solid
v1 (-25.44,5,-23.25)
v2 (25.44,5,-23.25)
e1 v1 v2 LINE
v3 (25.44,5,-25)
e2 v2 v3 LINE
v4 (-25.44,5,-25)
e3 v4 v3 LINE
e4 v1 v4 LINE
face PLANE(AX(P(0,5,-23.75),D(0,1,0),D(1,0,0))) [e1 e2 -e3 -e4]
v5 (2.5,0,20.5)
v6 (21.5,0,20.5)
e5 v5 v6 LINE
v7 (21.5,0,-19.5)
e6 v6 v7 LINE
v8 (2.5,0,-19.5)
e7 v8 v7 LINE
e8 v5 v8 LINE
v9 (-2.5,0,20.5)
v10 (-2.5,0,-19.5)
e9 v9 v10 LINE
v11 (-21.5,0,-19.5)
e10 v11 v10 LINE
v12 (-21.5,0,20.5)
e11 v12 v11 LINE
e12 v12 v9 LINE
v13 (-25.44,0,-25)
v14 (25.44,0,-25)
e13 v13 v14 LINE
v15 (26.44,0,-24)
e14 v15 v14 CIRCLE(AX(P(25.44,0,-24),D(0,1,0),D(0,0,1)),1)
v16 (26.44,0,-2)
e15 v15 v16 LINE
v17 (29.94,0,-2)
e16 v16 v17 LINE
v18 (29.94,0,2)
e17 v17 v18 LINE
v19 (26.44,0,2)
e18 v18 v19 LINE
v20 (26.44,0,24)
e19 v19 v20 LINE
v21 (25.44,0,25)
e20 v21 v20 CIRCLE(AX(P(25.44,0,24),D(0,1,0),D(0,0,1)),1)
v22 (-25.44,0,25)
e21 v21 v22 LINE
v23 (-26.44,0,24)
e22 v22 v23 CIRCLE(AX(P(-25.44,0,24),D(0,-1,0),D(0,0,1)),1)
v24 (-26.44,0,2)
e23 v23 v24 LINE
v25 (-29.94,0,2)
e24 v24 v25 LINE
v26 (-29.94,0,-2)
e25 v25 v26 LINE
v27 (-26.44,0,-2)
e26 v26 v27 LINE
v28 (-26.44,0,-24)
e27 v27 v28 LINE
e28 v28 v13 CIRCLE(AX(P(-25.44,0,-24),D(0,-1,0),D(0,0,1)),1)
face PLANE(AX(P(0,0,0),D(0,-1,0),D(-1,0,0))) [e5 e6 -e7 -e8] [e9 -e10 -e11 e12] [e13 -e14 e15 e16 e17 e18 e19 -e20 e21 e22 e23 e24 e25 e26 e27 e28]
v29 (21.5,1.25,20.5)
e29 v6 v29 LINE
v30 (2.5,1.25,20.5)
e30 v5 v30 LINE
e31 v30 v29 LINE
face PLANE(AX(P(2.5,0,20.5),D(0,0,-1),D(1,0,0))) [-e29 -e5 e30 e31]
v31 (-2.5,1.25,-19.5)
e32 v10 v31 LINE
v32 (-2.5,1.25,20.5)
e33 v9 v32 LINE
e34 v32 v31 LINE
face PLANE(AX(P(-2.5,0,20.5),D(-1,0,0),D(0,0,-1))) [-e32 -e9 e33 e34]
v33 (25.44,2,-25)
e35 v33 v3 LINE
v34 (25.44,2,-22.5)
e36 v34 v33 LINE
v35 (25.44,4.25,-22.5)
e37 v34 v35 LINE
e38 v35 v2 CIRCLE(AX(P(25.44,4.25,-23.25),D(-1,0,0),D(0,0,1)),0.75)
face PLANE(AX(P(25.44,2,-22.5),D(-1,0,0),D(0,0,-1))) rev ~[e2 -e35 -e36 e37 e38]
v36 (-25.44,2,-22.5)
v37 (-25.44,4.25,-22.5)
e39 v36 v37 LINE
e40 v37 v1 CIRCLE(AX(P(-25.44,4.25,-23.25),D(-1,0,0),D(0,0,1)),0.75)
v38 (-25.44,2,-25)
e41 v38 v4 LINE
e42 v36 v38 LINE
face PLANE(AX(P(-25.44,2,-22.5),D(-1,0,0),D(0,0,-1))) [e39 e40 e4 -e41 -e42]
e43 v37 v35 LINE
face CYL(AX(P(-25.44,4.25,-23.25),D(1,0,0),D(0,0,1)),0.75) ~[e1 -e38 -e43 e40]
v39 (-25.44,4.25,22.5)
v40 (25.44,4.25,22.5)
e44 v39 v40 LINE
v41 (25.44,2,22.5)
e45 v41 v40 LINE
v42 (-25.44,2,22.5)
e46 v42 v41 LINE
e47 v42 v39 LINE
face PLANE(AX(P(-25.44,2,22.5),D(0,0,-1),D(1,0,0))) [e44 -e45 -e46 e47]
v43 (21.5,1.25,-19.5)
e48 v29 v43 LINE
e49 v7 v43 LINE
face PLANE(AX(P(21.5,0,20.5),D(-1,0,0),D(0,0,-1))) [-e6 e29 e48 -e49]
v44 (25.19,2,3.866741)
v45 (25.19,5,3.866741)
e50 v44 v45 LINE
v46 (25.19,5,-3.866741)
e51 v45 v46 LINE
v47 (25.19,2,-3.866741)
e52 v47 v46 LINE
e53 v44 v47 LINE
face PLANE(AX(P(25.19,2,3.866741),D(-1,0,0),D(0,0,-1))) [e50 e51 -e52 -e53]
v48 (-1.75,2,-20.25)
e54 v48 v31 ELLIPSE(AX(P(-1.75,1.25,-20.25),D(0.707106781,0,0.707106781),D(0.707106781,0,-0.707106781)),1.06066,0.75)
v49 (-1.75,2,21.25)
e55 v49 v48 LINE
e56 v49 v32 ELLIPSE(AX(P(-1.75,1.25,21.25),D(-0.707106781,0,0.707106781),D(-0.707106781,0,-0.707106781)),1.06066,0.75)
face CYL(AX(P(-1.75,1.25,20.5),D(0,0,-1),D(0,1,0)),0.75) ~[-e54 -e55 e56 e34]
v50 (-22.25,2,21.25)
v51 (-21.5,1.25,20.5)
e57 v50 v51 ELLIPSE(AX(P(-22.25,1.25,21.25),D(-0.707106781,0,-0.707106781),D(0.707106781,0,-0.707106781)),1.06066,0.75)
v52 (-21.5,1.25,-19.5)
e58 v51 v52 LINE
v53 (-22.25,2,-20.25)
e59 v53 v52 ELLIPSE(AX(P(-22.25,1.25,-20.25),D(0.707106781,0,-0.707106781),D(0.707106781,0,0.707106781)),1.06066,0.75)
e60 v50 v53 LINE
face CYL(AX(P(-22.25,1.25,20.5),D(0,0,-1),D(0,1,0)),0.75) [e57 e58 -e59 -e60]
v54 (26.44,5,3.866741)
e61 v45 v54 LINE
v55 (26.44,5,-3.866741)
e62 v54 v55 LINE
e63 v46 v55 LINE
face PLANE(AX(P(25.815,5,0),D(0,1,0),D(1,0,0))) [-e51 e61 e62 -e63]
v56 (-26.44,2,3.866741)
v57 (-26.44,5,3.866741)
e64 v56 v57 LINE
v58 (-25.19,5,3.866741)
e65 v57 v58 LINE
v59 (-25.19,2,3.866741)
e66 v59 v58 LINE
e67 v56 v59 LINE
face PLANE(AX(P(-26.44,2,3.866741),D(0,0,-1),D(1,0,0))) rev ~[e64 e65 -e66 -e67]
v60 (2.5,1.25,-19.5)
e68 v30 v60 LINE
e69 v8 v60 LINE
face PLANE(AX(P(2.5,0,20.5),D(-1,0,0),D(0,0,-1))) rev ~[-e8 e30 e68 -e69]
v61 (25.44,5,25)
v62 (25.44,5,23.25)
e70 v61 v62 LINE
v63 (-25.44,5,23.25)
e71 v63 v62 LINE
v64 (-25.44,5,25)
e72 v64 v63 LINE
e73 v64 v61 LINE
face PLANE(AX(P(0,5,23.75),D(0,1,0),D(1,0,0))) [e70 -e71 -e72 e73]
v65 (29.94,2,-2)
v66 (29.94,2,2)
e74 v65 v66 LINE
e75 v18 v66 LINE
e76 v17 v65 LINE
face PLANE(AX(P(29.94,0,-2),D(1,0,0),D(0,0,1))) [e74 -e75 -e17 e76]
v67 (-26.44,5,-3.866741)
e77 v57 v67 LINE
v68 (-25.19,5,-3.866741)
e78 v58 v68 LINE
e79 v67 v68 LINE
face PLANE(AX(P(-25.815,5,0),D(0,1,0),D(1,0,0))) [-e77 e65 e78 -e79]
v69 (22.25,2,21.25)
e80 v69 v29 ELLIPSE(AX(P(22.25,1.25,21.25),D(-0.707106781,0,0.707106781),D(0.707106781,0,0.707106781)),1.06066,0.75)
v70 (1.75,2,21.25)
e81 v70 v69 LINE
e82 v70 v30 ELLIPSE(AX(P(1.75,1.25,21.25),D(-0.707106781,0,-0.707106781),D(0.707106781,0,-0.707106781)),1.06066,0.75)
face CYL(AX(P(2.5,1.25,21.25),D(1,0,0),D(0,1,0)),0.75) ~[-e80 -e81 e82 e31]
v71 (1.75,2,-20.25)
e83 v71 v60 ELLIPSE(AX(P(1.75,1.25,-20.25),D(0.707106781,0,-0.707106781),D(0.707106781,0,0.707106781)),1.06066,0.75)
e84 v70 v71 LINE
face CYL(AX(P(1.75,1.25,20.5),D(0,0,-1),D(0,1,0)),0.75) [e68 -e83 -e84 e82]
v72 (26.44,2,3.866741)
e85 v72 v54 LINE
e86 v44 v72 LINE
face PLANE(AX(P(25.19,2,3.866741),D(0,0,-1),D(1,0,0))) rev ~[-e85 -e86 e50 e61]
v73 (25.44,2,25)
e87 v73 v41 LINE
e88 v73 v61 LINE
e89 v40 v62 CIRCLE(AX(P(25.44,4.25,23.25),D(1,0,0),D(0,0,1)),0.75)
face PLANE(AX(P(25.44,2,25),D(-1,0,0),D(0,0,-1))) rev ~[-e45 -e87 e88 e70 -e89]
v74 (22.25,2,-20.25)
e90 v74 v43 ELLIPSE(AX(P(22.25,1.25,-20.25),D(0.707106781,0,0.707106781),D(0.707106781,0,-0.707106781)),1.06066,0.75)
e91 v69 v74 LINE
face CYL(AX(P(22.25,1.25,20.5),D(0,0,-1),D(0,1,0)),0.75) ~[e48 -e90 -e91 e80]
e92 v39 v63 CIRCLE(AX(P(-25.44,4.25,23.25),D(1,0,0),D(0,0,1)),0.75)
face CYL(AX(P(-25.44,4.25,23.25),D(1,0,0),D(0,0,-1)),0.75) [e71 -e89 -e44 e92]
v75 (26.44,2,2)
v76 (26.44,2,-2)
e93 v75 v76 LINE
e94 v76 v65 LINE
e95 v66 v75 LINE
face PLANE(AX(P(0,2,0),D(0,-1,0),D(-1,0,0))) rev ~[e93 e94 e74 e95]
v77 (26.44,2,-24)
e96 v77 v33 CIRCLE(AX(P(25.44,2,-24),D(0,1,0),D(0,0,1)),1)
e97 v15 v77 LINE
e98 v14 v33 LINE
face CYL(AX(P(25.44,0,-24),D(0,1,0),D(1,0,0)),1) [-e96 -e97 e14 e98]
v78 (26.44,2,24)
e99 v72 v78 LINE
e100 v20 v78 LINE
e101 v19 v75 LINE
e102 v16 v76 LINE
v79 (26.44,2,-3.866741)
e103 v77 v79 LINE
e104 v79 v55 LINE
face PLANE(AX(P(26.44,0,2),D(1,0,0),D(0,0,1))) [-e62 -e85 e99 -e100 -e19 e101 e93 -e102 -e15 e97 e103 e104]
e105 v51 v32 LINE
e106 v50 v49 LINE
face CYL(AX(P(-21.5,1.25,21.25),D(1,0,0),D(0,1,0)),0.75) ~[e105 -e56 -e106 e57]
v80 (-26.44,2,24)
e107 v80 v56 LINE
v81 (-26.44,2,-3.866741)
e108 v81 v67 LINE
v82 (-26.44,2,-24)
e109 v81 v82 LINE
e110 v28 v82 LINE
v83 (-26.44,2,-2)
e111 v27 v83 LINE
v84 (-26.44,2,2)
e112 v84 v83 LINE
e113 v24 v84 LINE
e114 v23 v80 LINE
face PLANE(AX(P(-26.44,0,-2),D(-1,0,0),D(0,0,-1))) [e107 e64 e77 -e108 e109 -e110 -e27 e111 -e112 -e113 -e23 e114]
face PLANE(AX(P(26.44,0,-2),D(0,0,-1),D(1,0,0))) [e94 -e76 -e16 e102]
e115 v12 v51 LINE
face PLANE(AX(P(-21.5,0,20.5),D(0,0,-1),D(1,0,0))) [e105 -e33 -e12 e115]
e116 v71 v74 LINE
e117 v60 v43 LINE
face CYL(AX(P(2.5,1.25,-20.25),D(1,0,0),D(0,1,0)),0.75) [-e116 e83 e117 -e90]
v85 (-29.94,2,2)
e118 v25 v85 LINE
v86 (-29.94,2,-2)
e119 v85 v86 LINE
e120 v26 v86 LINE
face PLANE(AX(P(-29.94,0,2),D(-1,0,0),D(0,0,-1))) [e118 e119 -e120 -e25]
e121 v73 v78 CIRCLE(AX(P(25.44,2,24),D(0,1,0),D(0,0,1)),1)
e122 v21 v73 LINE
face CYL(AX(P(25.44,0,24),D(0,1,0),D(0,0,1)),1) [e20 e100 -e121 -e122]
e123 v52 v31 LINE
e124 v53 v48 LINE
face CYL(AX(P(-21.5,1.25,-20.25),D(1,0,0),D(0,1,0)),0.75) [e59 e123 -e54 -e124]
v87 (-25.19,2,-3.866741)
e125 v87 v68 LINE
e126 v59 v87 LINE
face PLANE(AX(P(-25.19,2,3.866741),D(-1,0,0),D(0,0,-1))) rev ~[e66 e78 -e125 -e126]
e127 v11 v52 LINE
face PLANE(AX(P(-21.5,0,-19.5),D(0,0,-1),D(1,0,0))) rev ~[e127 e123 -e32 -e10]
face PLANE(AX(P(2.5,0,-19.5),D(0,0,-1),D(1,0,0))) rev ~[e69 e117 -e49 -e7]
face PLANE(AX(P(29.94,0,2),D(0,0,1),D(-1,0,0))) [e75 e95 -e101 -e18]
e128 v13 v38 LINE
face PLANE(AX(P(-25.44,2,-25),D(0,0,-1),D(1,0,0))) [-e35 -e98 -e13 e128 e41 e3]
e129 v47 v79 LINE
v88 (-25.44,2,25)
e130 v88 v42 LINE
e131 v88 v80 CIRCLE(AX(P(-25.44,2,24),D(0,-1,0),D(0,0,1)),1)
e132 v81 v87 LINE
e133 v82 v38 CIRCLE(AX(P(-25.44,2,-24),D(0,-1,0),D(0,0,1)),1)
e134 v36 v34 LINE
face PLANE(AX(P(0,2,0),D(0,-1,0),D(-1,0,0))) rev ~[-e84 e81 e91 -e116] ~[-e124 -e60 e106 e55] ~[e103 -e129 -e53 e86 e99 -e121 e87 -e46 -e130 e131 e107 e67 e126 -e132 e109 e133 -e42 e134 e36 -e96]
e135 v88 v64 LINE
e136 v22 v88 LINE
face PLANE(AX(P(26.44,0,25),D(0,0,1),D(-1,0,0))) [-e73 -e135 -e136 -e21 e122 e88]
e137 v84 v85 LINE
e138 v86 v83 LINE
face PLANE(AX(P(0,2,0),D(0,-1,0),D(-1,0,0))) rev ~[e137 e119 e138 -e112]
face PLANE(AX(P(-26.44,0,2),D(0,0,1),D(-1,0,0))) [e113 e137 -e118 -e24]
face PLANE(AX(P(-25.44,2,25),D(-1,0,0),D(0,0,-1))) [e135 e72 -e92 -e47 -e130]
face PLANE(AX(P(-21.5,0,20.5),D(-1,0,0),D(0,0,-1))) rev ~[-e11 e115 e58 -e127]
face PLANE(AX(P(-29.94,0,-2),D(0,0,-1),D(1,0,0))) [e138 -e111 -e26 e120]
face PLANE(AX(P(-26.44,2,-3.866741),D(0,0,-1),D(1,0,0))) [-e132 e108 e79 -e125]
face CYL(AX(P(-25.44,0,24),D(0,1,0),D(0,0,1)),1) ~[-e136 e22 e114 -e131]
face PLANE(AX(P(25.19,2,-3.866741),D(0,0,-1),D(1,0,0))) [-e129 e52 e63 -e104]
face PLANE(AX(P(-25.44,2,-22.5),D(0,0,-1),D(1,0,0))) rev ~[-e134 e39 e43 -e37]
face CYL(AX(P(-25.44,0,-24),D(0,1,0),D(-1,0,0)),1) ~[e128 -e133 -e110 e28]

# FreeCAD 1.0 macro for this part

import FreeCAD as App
import Part
import Sketcher
from FreeCAD import Vector


def edges_at(feature, points):
    """Names of the edges that pass closest to the given points."""
    edges = feature.Shape.Edges
    near = lambda p: min(range(len(edges)), key=lambda i: edges[i].distToShape(Part.Vertex(*p))[0])
    return sorted({f"Edge{near(p) + 1}" for p in points})

doc = App.newDocument("Part")
body = doc.addObject("PartDesign::Body", "Body")

# Sketch on XZ plane
sketch1 = body.newObject("Sketcher::SketchObject", "Sketch")
sketch1.AttachmentSupport = (doc.getObject("XZ_Plane"), [""])
sketch1.MapMode = "FlatFace"
sketch1.addGeometry([
    Part.LineSegment(Vector(-26.4, 25, 0), Vector(26.4, 25, 0)),  # 0
    Part.LineSegment(Vector(26.4, 25, 0), Vector(26.4, 2, 0)),  # 1
    Part.LineSegment(Vector(26.4, 2, 0), Vector(29.9, 2, 0)),  # 2
    Part.LineSegment(Vector(29.9, 2, 0), Vector(29.9, -2, 0)),  # 3
    Part.LineSegment(Vector(29.9, -2, 0), Vector(26.4, -2, 0)),  # 4
    Part.LineSegment(Vector(26.4, -2, 0), Vector(26.4, -25, 0)),  # 5
    Part.LineSegment(Vector(26.4, -25, 0), Vector(-26.4, -25, 0)),  # 6
    Part.LineSegment(Vector(-26.4, -25, 0), Vector(-26.4, -2, 0)),  # 7
    Part.LineSegment(Vector(-26.4, -2, 0), Vector(-29.9, -2, 0)),  # 8
    Part.LineSegment(Vector(-29.9, -2, 0), Vector(-29.9, 2, 0)),  # 9
    Part.LineSegment(Vector(-29.9, 2, 0), Vector(-26.4, 2, 0)),  # 10
    Part.LineSegment(Vector(-26.4, 2, 0), Vector(-26.4, 25, 0)),  # 11
    Part.LineSegment(Vector(2.5, 20.5, 0), Vector(2.5, -19.5, 0)),  # 12
    Part.LineSegment(Vector(2.5, -19.5, 0), Vector(21.5, -19.5, 0)),  # 13
    Part.LineSegment(Vector(21.5, -19.5, 0), Vector(21.5, 20.5, 0)),  # 14
    Part.LineSegment(Vector(21.5, 20.5, 0), Vector(2.5, 20.5, 0)),  # 15
    Part.LineSegment(Vector(-21.5, 20.5, 0), Vector(-21.5, -19.5, 0)),  # 16
    Part.LineSegment(Vector(-21.5, -19.5, 0), Vector(-2.5, -19.5, 0)),  # 17
    Part.LineSegment(Vector(-2.5, -19.5, 0), Vector(-2.5, 20.5, 0)),  # 18
    Part.LineSegment(Vector(-2.5, 20.5, 0), Vector(-21.5, 20.5, 0)),  # 19
], False)
sketch1.addConstraint([
    Sketcher.Constraint("Coincident", 0, 2, 1, 1),
    Sketcher.Constraint("Coincident", 1, 2, 2, 1),
    Sketcher.Constraint("Coincident", 2, 2, 3, 1),
    Sketcher.Constraint("Coincident", 3, 2, 4, 1),
    Sketcher.Constraint("Coincident", 4, 2, 5, 1),
    Sketcher.Constraint("Coincident", 5, 2, 6, 1),
    Sketcher.Constraint("Coincident", 6, 2, 7, 1),
    Sketcher.Constraint("Coincident", 7, 2, 8, 1),
    Sketcher.Constraint("Coincident", 8, 2, 9, 1),
    Sketcher.Constraint("Coincident", 9, 2, 10, 1),
    Sketcher.Constraint("Coincident", 10, 2, 11, 1),
    Sketcher.Constraint("Coincident", 11, 2, 0, 1),
    Sketcher.Constraint("Coincident", 12, 2, 13, 1),
    Sketcher.Constraint("Coincident", 13, 2, 14, 1),
    Sketcher.Constraint("Coincident", 14, 2, 15, 1),
    Sketcher.Constraint("Coincident", 15, 2, 12, 1),
    Sketcher.Constraint("Coincident", 16, 2, 17, 1),
    Sketcher.Constraint("Coincident", 17, 2, 18, 1),
    Sketcher.Constraint("Coincident", 18, 2, 19, 1),
    Sketcher.Constraint("Coincident", 19, 2, 16, 1),
    Sketcher.Constraint("Horizontal", 0),
    Sketcher.Constraint("Vertical", 1),
    Sketcher.Constraint("Horizontal", 2),
    Sketcher.Constraint("Vertical", 3),
    Sketcher.Constraint("Horizontal", 4),
    Sketcher.Constraint("Vertical", 5),
    Sketcher.Constraint("Horizontal", 6),
    Sketcher.Constraint("Vertical", 7),
    Sketcher.Constraint("Horizontal", 8),
    Sketcher.Constraint("Vertical", 9),
    Sketcher.Constraint("Horizontal", 10),
    Sketcher.Constraint("Vertical", 11),
    Sketcher.Constraint("Vertical", 12),
    Sketcher.Constraint("Horizontal", 13),
    Sketcher.Constraint("Vertical", 14),
    Sketcher.Constraint("Horizontal", 15),
    Sketcher.Constraint("Vertical", 16),
    Sketcher.Constraint("Horizontal", 17),
    Sketcher.Constraint("Vertical", 18),
    Sketcher.Constraint("Horizontal", 19),
    Sketcher.Constraint("Symmetric", 0, 2, 6, 2, -1, 1),
    Sketcher.Constraint("Symmetric", 2, 2, 8, 2, -1, 1),
    Sketcher.Constraint("Symmetric", 4, 2, 10, 2, -1, 1),
    Sketcher.Constraint("Symmetric", 4, 2, 7, 2, -2),
    Sketcher.Constraint("Symmetric", 13, 2, 16, 2, -2),
    Sketcher.Constraint("Symmetric", 15, 2, 18, 2, -2),
    Sketcher.Constraint("DistanceX", 13, 1, 13, 2, 19.0),
    Sketcher.Constraint("DistanceY", 1, 2, 1, 1, 23.0),
    Sketcher.Constraint("DistanceY", 3, 2, 3, 1, 4.0),
    Sketcher.Constraint("DistanceY", 12, 2, 12, 1, 40.0),
    Sketcher.Constraint("DistanceX", 2, 1, 2, 2, 3.5),
    Sketcher.Constraint("DistanceX", 17, 2, 12, 2, 5.0),
    Sketcher.Constraint("DistanceX", 0, 1, 0, 2, 52.88),
    Sketcher.Constraint("DistanceY", 12, 2, -1, 1, 19.5),
])
pad1 = body.newObject("PartDesign::Pad", "Pad")
pad1.Profile = sketch1
pad1.Length = 2
pad1.Reversed = True
doc.recompute()

fillet = body.newObject("PartDesign::Fillet", "Fillet")
fillet.Base = (pad1, edges_at(pad1, [
    (-26.44, 1, -25),
    (26.44, 1, -25),
    (26.44, 1, 25),
    (-26.44, 1, 25),
]))
fillet.Radius = 1

# Sketch on XZ plane
sketch2 = body.newObject("Sketcher::SketchObject", "Sketch001")
sketch2.AttachmentSupport = (doc.getObject("XZ_Plane"), [""])
sketch2.MapMode = "FlatFace"
sketch2.AttachmentOffset = App.Placement(Vector(0, 0, -2), App.Rotation())
sketch2.addGeometry([
    Part.LineSegment(Vector(-25.4, -25, 0), Vector(-25.4, -22.5, 0)),  # 0
    Part.LineSegment(Vector(-25.4, -22.5, 0), Vector(25.4, -22.5, 0)),  # 1
    Part.LineSegment(Vector(25.4, -22.5, 0), Vector(25.4, -25, 0)),  # 2
    Part.LineSegment(Vector(25.4, -25, 0), Vector(-25.4, -25, 0)),  # 3
    Part.LineSegment(Vector(-25.4, 22.5, 0), Vector(-25.4, 25, 0)),  # 4
    Part.LineSegment(Vector(-25.4, 25, 0), Vector(25.4, 25, 0)),  # 5
    Part.LineSegment(Vector(25.4, 25, 0), Vector(25.4, 22.5, 0)),  # 6
    Part.LineSegment(Vector(25.4, 22.5, 0), Vector(-25.4, 22.5, 0)),  # 7
    Part.LineSegment(Vector(-26.4, -3.9, 0), Vector(-26.4, 3.9, 0)),  # 8
    Part.LineSegment(Vector(-26.4, 3.9, 0), Vector(-25.2, 3.9, 0)),  # 9
    Part.LineSegment(Vector(-25.2, 3.9, 0), Vector(-25.2, -3.9, 0)),  # 10
    Part.LineSegment(Vector(-25.2, -3.9, 0), Vector(-26.4, -3.9, 0)),  # 11
    Part.LineSegment(Vector(25.2, -3.9, 0), Vector(25.2, 3.9, 0)),  # 12
    Part.LineSegment(Vector(25.2, 3.9, 0), Vector(26.4, 3.9, 0)),  # 13
    Part.LineSegment(Vector(26.4, 3.9, 0), Vector(26.4, -3.9, 0)),  # 14
    Part.LineSegment(Vector(26.4, -3.9, 0), Vector(25.2, -3.9, 0)),  # 15
], False)
sketch2.addConstraint([
    Sketcher.Constraint("Coincident", 0, 2, 1, 1),
    Sketcher.Constraint("Coincident", 1, 2, 2, 1),
    Sketcher.Constraint("Coincident", 2, 2, 3, 1),
    Sketcher.Constraint("Coincident", 3, 2, 0, 1),
    Sketcher.Constraint("Coincident", 4, 2, 5, 1),
    Sketcher.Constraint("Coincident", 5, 2, 6, 1),
    Sketcher.Constraint("Coincident", 6, 2, 7, 1),
    Sketcher.Constraint("Coincident", 7, 2, 4, 1),
    Sketcher.Constraint("Coincident", 8, 2, 9, 1),
    Sketcher.Constraint("Coincident", 9, 2, 10, 1),
    Sketcher.Constraint("Coincident", 10, 2, 11, 1),
    Sketcher.Constraint("Coincident", 11, 2, 8, 1),
    Sketcher.Constraint("Coincident", 12, 2, 13, 1),
    Sketcher.Constraint("Coincident", 13, 2, 14, 1),
    Sketcher.Constraint("Coincident", 14, 2, 15, 1),
    Sketcher.Constraint("Coincident", 15, 2, 12, 1),
    Sketcher.Constraint("Vertical", 0),
    Sketcher.Constraint("Horizontal", 1),
    Sketcher.Constraint("Vertical", 2),
    Sketcher.Constraint("Horizontal", 3),
    Sketcher.Constraint("Vertical", 4),
    Sketcher.Constraint("Horizontal", 5),
    Sketcher.Constraint("Vertical", 6),
    Sketcher.Constraint("Horizontal", 7),
    Sketcher.Constraint("Vertical", 8),
    Sketcher.Constraint("Horizontal", 9),
    Sketcher.Constraint("Vertical", 10),
    Sketcher.Constraint("Horizontal", 11),
    Sketcher.Constraint("Vertical", 12),
    Sketcher.Constraint("Horizontal", 13),
    Sketcher.Constraint("Vertical", 14),
    Sketcher.Constraint("Horizontal", 15),
    Sketcher.Constraint("Symmetric", 2, 2, 4, 2, -1, 1),
    Sketcher.Constraint("Symmetric", 0, 2, 6, 2, -1, 1),
    Sketcher.Constraint("Symmetric", 10, 2, 12, 2, -1, 1),
    Sketcher.Constraint("Symmetric", 8, 2, 14, 2, -1, 1),
    Sketcher.Constraint("Horizontal", 9, 2, 12, 2),
    Sketcher.Constraint("Vertical", 3, 2, 4, 2),
    Sketcher.Constraint("DistanceY", 0, 1, 0, 2, 2.5),
    Sketcher.Constraint("DistanceY", 2, 2, -1, 1, 25.0),
    Sketcher.Constraint("DistanceX", 8, 2, 7, 2, 1.0),
    Sketcher.Constraint("DistanceX", 1, 1, 1, 2, 50.88),
    Sketcher.Constraint("DistanceX", 9, 1, 9, 2, 1.25),
    Sketcher.Constraint("DistanceY", 8, 1, 8, 2, 7.733481),
])
pad2 = body.newObject("PartDesign::Pad", "Pad001")
pad2.Profile = sketch2
pad2.Length = 3
pad2.Reversed = True
doc.recompute()

fillet2 = body.newObject("PartDesign::Fillet", "Fillet001")
fillet2.Base = (pad2, edges_at(pad2, [
    (0, 5, 22.5),
    (-2.5, 2, 0.5),
    (-12, 2, -19.5),
    (-21.5, 2, 0.5),
    (-12, 2, 20.5),
    (12, 2, 20.5),
    (21.5, 2, 0.5),
    (12, 2, -19.5),
    (2.5, 2, 0.5),
    (0, 5, -22.5),
]))
fillet2.Radius = 0.75

doc.recompute()
